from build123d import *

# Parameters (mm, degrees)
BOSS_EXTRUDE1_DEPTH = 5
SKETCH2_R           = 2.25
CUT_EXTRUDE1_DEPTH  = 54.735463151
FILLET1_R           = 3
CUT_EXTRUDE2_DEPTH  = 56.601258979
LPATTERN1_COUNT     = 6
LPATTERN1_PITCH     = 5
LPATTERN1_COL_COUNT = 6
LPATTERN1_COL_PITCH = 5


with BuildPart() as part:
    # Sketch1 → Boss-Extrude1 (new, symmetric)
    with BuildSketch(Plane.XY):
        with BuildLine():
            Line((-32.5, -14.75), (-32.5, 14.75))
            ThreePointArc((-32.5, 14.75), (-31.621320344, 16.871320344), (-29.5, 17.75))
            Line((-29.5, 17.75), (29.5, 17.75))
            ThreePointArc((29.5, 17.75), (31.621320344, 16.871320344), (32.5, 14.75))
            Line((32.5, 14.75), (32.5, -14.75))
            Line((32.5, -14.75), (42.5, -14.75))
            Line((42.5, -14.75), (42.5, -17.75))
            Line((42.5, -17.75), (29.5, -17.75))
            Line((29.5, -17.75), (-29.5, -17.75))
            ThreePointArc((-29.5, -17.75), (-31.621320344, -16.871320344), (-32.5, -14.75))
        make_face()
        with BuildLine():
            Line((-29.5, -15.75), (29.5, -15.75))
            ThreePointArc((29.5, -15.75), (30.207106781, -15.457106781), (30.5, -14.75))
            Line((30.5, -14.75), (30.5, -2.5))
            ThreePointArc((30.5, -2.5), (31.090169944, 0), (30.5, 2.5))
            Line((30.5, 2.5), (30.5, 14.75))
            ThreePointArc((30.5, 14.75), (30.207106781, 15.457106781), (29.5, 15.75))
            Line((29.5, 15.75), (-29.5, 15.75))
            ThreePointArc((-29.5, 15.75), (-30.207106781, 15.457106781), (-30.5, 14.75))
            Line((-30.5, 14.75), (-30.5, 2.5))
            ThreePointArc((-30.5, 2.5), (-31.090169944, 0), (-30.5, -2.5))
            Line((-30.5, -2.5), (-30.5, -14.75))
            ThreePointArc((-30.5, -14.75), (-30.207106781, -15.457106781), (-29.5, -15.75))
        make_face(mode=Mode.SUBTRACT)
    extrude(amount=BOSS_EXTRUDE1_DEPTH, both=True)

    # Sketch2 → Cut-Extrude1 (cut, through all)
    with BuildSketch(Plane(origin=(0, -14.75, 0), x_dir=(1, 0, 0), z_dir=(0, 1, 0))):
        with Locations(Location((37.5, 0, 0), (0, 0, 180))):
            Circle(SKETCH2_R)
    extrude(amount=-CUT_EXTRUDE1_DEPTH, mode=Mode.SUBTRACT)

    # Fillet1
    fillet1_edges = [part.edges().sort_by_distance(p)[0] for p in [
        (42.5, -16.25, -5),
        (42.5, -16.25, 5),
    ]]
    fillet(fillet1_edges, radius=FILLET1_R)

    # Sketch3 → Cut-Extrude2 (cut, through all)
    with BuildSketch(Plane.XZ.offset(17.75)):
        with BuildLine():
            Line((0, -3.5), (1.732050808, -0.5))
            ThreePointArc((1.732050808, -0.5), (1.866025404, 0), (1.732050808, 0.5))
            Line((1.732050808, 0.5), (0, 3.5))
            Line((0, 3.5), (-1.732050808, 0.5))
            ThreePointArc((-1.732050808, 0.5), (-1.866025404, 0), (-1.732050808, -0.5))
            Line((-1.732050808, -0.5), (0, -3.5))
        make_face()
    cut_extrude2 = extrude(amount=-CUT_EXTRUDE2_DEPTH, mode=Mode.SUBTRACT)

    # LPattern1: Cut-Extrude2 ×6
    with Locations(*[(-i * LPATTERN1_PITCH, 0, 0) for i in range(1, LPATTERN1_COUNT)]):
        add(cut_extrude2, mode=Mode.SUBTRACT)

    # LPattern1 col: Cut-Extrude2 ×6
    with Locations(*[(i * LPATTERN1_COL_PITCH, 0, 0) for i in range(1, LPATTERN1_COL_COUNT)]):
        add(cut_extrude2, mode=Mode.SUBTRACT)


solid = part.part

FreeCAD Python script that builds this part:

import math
import FreeCAD as App
import Part
import Sketcher
from FreeCAD import Vector
Q = App.Units.Quantity


def edges_at(feature, points):
    """Names of the edges that pass closest to the given points."""
    edges = feature.Shape.Edges
    near = lambda p: min(range(len(edges)), key=lambda i: edges[i].distToShape(Part.Vertex(*p))[0])
    return sorted({f"Edge{near(p) + 1}" for p in points})

doc = App.newDocument("Part")
body = doc.addObject("PartDesign::Body", "Body")

# Sketch on XY plane
sketch1 = doc.addObject("Sketcher::SketchObject", "Sketch")
body.addObject(sketch1)
sketch1.AttachmentSupport = (doc.XY_Plane, [""])
sketch1.MapMode = "FlatFace"
sketch1.addGeometry([
    Part.LineSegment(Vector(-32.5, 14.8, 0), Vector(-32.5, -14.8, 0)),  # 0
    Part.ArcOfCircle(Part.Circle(Vector(-29.5, -14.8, 0), Vector(0, 0, 1), 3), math.radians(180), math.radians(270)),  # 1
    Part.LineSegment(Vector(-29.5, -17.8, 0), Vector(42.5, -17.8, 0)),  # 2
    Part.LineSegment(Vector(42.5, -17.8, 0), Vector(42.5, -14.8, 0)),  # 3
    Part.LineSegment(Vector(42.5, -14.8, 0), Vector(32.5, -14.8, 0)),  # 4
    Part.LineSegment(Vector(32.5, -14.8, 0), Vector(32.5, 14.8, 0)),  # 5
    Part.ArcOfCircle(Part.Circle(Vector(29.5, 14.8, 0), Vector(0, 0, 1), 3), math.radians(0), math.radians(90)),  # 6
    Part.LineSegment(Vector(29.5, 17.8, 0), Vector(-29.5, 17.8, 0)),  # 7
    Part.ArcOfCircle(Part.Circle(Vector(-29.5, 14.8, 0), Vector(0, 0, 1), 3), math.radians(90), math.radians(180)),  # 8
    Part.ArcOfCircle(Part.Circle(Vector(-29.5, -14.7, 0), Vector(0, 0, 1), 1), math.radians(-180), math.radians(-90)),  # 9
    Part.LineSegment(Vector(-30.5, -14.8, 0), Vector(-30.5, -2.5, 0)),  # 10
    Part.ArcOfCircle(Part.Circle(Vector(-25.5, 0, 0), Vector(0, 0, 1), 5.6), math.radians(153), math.radians(207)),  # 11
    Part.LineSegment(Vector(-30.5, 2.5, 0), Vector(-30.5, 14.8, 0)),  # 12
    Part.ArcOfCircle(Part.Circle(Vector(-29.5, 14.7, 0), Vector(0, 0, 1), 1), math.radians(90), math.radians(180)),  # 13
    Part.LineSegment(Vector(-29.5, 15.8, 0), Vector(29.5, 15.8, 0)),  # 14
    Part.ArcOfCircle(Part.Circle(Vector(29.5, 14.7, 0), Vector(0, 0, 1), 1), math.radians(0), math.radians(90)),  # 15
    Part.LineSegment(Vector(30.5, 14.8, 0), Vector(30.5, 2.5, 0)),  # 16
    Part.ArcOfCircle(Part.Circle(Vector(25.5, 0, 0), Vector(0, 0, 1), 5.6), math.radians(-27), math.radians(27)),  # 17
    Part.LineSegment(Vector(30.5, -2.5, 0), Vector(30.5, -14.8, 0)),  # 18
    Part.ArcOfCircle(Part.Circle(Vector(29.5, -14.7, 0), Vector(0, 0, 1), 1), math.radians(-90), math.radians(0)),  # 19
    Part.LineSegment(Vector(29.5, -15.8, 0), Vector(-29.5, -15.8, 0)),  # 20
], False)
sketch1.addConstraint([
    Sketcher.Constraint("Tangent", 0, 2, 1, 1),
    Sketcher.Constraint("Tangent", 1, 2, 2, 1),
    Sketcher.Constraint("Coincident", 2, 2, 3, 1),
    Sketcher.Constraint("Coincident", 3, 2, 4, 1),
    Sketcher.Constraint("Coincident", 4, 2, 5, 1),
    Sketcher.Constraint("Tangent", 5, 2, 6, 1),
    Sketcher.Constraint("Tangent", 6, 2, 7, 1),
    Sketcher.Constraint("Tangent", 7, 2, 8, 1),
    Sketcher.Constraint("Tangent", 8, 2, 0, 1),
    Sketcher.Constraint("Tangent", 9, 1, 10, 1),
    Sketcher.Constraint("Coincident", 10, 2, 11, 2),
    Sketcher.Constraint("Coincident", 11, 1, 12, 1),
    Sketcher.Constraint("Tangent", 12, 2, 13, 2),
    Sketcher.Constraint("Tangent", 13, 1, 14, 1),
    Sketcher.Constraint("Tangent", 14, 2, 15, 2),
    Sketcher.Constraint("Tangent", 15, 1, 16, 1),
    Sketcher.Constraint("Coincident", 16, 2, 17, 2),
    Sketcher.Constraint("Coincident", 17, 1, 18, 1),
    Sketcher.Constraint("Tangent", 18, 2, 19, 2),
    Sketcher.Constraint("Tangent", 19, 1, 20, 1),
    Sketcher.Constraint("Tangent", 20, 2, 9, 2),
    Sketcher.Constraint("Vertical", 0),
    Sketcher.Constraint("Horizontal", 2),
    Sketcher.Constraint("Vertical", 3),
    Sketcher.Constraint("Horizontal", 4),
    Sketcher.Constraint("Vertical", 5),
    Sketcher.Constraint("Horizontal", 7),
    Sketcher.Constraint("Vertical", 10),
    Sketcher.Constraint("Vertical", 12),
    Sketcher.Constraint("Horizontal", 14),
    Sketcher.Constraint("Vertical", 16),
    Sketcher.Constraint("Vertical", 18),
    Sketcher.Constraint("Horizontal", 20),
    Sketcher.Constraint("Coincident", 9, 3, 1, 3),
    Sketcher.Constraint("Coincident", 13, 3, 8, 3),
    Sketcher.Constraint("Coincident", 15, 3, 6, 3),
    Sketcher.Constraint("Equal", 1, 6),
    Sketcher.Constraint("Equal", 6, 8),
    Sketcher.Constraint("Equal", 9, 13),
    Sketcher.Constraint("Equal", 11, 17),
    Sketcher.Constraint("Equal", 15, 19),
    Sketcher.Constraint("Symmetric", 1, 3, 6, 3, -1, 1),
    Sketcher.Constraint("Symmetric", 11, 3, 17, 3, -1, 1),
    Sketcher.Constraint("Symmetric", 10, 2, 17, 1, -2),
    Sketcher.Constraint("Horizontal", 0, 2, 3, 2),
    Sketcher.Constraint("Radius", 1, Q("3 mm")),
    Sketcher.Constraint("Radius", 9, Q("1 mm")),
    Sketcher.Constraint("DistanceX", 2, 1, 2, 2, Q("72 mm")),
    Sketcher.Constraint("DistanceX", 4, 2, 4, 1, Q("10 mm")),
    Sketcher.Constraint("DistanceY", 0, 2, 0, 1, Q("29.5 mm")),
    Sketcher.Constraint("DistanceX", 9, 3, 11, 3, Q("4 mm")),
    Sketcher.Constraint("DistanceY", 10, 2, 11, 1, Q("5 mm")),
])
pad1 = doc.addObject("PartDesign::Pad", "Pad")
body.addObject(pad1)
pad1.Profile = sketch1
pad1.Length = 10
pad1.Midplane = True

# Sketch on XZ plane
sketch2 = doc.addObject("Sketcher::SketchObject", "Sketch001")
body.addObject(sketch2)
sketch2.AttachmentSupport = (doc.XZ_Plane, [""])
sketch2.MapMode = "FlatFace"
sketch2.AttachmentOffset = App.Placement(Vector(0, 0, 14.75), App.Rotation())
sketch2.addGeometry(Part.Circle(Vector(37.5, 0, 0), Vector(0, 0, 1), 2.2), False)
sketch2.addConstraint([
    Sketcher.Constraint("PointOnObject", 0, 3, -1),
    Sketcher.Constraint("Diameter", 0, Q("4.5 mm")),
    Sketcher.Constraint("DistanceX", -1, 1, 0, 3, Q("37.5 mm")),
])
pocket1 = doc.addObject("PartDesign::Pocket", "Pocket")
body.addObject(pocket1)
pocket1.Profile = sketch2
pocket1.Type = "ThroughAll"
pocket1.Reversed = True
doc.recompute()

fillet = doc.addObject("PartDesign::Fillet", "Fillet")
body.addObject(fillet)
fillet.Base = (pocket1, edges_at(pocket1, [(42.5, -16.25, -5), (42.5, -16.25, 5)]))
fillet.Radius = 3

# Sketch on XZ plane
sketch3 = doc.addObject("Sketcher::SketchObject", "Sketch002")
body.addObject(sketch3)
sketch3.AttachmentSupport = (doc.XZ_Plane, [""])
sketch3.MapMode = "FlatFace"
sketch3.AttachmentOffset = App.Placement(Vector(0, 0, 17.75), App.Rotation())
sketch3.addGeometry([
    Part.LineSegment(Vector(0, -3.5, 0), Vector(1.7, -0.5, 0)),  # 0
    Part.ArcOfCircle(Part.Circle(Vector(0.9, 0, 0), Vector(0, 0, 1), 1), math.radians(-30), math.radians(30)),  # 1
    Part.LineSegment(Vector(1.7, 0.5, 0), Vector(0, 3.5, 0)),  # 2
    Part.LineSegment(Vector(0, 3.5, 0), Vector(-1.7, 0.5, 0)),  # 3
    Part.ArcOfCircle(Part.Circle(Vector(-0.9, 0, 0), Vector(0, 0, 1), 1), math.radians(150), math.radians(210)),  # 4
    Part.LineSegment(Vector(-1.7, -0.5, 0), Vector(0, -3.5, 0)),  # 5
], False)
sketch3.addConstraint([
    Sketcher.Constraint("Tangent", 0, 2, 1, 1),
    Sketcher.Constraint("Tangent", 1, 2, 2, 1),
    Sketcher.Constraint("Coincident", 2, 2, 3, 1),
    Sketcher.Constraint("Tangent", 3, 2, 4, 1),
    Sketcher.Constraint("Tangent", 4, 2, 5, 1),
    Sketcher.Constraint("Coincident", 5, 2, 0, 1),
    Sketcher.Constraint("Equal", 1, 4),
    Sketcher.Constraint("Symmetric", 1, 3, 4, 3, -1, 1),
    Sketcher.Constraint("Symmetric", 2, 2, 5, 2, -1, 1),
    Sketcher.Constraint("Symmetric", 1, 2, 3, 2, -2),
    Sketcher.Constraint("Radius", 1, Q("1 mm")),
    Sketcher.Constraint("Angle", 0, Q("60 deg")),
    Sketcher.Constraint("DistanceY", 1, 2, 2, 2, Q("3 mm")),
])
pocket2 = doc.addObject("PartDesign::Pocket", "Pocket001")
body.addObject(pocket2)
pocket2.Profile = sketch3
pocket2.Type = "ThroughAll"
doc.recompute()

linearpattern = doc.addObject("PartDesign::LinearPattern", "LinearPattern")
body.addObject(linearpattern)
linearpattern.Originals = [pocket2]
linearpattern.Direction = (doc.X_Axis, [""])
linearpattern.Mode = "offset"
linearpattern.Offset = 5
linearpattern.Occurrences = 6
linearpattern.Reversed = True
body.Tip = linearpattern
doc.recompute()

linearpattern2 = doc.addObject("PartDesign::LinearPattern", "LinearPattern001")
body.addObject(linearpattern2)
linearpattern2.Originals = [pocket2]
linearpattern2.Direction = (doc.X_Axis, [""])
linearpattern2.Mode = "offset"
linearpattern2.Offset = 5
linearpattern2.Occurrences = 6
body.Tip = linearpattern2

doc.recompute()
